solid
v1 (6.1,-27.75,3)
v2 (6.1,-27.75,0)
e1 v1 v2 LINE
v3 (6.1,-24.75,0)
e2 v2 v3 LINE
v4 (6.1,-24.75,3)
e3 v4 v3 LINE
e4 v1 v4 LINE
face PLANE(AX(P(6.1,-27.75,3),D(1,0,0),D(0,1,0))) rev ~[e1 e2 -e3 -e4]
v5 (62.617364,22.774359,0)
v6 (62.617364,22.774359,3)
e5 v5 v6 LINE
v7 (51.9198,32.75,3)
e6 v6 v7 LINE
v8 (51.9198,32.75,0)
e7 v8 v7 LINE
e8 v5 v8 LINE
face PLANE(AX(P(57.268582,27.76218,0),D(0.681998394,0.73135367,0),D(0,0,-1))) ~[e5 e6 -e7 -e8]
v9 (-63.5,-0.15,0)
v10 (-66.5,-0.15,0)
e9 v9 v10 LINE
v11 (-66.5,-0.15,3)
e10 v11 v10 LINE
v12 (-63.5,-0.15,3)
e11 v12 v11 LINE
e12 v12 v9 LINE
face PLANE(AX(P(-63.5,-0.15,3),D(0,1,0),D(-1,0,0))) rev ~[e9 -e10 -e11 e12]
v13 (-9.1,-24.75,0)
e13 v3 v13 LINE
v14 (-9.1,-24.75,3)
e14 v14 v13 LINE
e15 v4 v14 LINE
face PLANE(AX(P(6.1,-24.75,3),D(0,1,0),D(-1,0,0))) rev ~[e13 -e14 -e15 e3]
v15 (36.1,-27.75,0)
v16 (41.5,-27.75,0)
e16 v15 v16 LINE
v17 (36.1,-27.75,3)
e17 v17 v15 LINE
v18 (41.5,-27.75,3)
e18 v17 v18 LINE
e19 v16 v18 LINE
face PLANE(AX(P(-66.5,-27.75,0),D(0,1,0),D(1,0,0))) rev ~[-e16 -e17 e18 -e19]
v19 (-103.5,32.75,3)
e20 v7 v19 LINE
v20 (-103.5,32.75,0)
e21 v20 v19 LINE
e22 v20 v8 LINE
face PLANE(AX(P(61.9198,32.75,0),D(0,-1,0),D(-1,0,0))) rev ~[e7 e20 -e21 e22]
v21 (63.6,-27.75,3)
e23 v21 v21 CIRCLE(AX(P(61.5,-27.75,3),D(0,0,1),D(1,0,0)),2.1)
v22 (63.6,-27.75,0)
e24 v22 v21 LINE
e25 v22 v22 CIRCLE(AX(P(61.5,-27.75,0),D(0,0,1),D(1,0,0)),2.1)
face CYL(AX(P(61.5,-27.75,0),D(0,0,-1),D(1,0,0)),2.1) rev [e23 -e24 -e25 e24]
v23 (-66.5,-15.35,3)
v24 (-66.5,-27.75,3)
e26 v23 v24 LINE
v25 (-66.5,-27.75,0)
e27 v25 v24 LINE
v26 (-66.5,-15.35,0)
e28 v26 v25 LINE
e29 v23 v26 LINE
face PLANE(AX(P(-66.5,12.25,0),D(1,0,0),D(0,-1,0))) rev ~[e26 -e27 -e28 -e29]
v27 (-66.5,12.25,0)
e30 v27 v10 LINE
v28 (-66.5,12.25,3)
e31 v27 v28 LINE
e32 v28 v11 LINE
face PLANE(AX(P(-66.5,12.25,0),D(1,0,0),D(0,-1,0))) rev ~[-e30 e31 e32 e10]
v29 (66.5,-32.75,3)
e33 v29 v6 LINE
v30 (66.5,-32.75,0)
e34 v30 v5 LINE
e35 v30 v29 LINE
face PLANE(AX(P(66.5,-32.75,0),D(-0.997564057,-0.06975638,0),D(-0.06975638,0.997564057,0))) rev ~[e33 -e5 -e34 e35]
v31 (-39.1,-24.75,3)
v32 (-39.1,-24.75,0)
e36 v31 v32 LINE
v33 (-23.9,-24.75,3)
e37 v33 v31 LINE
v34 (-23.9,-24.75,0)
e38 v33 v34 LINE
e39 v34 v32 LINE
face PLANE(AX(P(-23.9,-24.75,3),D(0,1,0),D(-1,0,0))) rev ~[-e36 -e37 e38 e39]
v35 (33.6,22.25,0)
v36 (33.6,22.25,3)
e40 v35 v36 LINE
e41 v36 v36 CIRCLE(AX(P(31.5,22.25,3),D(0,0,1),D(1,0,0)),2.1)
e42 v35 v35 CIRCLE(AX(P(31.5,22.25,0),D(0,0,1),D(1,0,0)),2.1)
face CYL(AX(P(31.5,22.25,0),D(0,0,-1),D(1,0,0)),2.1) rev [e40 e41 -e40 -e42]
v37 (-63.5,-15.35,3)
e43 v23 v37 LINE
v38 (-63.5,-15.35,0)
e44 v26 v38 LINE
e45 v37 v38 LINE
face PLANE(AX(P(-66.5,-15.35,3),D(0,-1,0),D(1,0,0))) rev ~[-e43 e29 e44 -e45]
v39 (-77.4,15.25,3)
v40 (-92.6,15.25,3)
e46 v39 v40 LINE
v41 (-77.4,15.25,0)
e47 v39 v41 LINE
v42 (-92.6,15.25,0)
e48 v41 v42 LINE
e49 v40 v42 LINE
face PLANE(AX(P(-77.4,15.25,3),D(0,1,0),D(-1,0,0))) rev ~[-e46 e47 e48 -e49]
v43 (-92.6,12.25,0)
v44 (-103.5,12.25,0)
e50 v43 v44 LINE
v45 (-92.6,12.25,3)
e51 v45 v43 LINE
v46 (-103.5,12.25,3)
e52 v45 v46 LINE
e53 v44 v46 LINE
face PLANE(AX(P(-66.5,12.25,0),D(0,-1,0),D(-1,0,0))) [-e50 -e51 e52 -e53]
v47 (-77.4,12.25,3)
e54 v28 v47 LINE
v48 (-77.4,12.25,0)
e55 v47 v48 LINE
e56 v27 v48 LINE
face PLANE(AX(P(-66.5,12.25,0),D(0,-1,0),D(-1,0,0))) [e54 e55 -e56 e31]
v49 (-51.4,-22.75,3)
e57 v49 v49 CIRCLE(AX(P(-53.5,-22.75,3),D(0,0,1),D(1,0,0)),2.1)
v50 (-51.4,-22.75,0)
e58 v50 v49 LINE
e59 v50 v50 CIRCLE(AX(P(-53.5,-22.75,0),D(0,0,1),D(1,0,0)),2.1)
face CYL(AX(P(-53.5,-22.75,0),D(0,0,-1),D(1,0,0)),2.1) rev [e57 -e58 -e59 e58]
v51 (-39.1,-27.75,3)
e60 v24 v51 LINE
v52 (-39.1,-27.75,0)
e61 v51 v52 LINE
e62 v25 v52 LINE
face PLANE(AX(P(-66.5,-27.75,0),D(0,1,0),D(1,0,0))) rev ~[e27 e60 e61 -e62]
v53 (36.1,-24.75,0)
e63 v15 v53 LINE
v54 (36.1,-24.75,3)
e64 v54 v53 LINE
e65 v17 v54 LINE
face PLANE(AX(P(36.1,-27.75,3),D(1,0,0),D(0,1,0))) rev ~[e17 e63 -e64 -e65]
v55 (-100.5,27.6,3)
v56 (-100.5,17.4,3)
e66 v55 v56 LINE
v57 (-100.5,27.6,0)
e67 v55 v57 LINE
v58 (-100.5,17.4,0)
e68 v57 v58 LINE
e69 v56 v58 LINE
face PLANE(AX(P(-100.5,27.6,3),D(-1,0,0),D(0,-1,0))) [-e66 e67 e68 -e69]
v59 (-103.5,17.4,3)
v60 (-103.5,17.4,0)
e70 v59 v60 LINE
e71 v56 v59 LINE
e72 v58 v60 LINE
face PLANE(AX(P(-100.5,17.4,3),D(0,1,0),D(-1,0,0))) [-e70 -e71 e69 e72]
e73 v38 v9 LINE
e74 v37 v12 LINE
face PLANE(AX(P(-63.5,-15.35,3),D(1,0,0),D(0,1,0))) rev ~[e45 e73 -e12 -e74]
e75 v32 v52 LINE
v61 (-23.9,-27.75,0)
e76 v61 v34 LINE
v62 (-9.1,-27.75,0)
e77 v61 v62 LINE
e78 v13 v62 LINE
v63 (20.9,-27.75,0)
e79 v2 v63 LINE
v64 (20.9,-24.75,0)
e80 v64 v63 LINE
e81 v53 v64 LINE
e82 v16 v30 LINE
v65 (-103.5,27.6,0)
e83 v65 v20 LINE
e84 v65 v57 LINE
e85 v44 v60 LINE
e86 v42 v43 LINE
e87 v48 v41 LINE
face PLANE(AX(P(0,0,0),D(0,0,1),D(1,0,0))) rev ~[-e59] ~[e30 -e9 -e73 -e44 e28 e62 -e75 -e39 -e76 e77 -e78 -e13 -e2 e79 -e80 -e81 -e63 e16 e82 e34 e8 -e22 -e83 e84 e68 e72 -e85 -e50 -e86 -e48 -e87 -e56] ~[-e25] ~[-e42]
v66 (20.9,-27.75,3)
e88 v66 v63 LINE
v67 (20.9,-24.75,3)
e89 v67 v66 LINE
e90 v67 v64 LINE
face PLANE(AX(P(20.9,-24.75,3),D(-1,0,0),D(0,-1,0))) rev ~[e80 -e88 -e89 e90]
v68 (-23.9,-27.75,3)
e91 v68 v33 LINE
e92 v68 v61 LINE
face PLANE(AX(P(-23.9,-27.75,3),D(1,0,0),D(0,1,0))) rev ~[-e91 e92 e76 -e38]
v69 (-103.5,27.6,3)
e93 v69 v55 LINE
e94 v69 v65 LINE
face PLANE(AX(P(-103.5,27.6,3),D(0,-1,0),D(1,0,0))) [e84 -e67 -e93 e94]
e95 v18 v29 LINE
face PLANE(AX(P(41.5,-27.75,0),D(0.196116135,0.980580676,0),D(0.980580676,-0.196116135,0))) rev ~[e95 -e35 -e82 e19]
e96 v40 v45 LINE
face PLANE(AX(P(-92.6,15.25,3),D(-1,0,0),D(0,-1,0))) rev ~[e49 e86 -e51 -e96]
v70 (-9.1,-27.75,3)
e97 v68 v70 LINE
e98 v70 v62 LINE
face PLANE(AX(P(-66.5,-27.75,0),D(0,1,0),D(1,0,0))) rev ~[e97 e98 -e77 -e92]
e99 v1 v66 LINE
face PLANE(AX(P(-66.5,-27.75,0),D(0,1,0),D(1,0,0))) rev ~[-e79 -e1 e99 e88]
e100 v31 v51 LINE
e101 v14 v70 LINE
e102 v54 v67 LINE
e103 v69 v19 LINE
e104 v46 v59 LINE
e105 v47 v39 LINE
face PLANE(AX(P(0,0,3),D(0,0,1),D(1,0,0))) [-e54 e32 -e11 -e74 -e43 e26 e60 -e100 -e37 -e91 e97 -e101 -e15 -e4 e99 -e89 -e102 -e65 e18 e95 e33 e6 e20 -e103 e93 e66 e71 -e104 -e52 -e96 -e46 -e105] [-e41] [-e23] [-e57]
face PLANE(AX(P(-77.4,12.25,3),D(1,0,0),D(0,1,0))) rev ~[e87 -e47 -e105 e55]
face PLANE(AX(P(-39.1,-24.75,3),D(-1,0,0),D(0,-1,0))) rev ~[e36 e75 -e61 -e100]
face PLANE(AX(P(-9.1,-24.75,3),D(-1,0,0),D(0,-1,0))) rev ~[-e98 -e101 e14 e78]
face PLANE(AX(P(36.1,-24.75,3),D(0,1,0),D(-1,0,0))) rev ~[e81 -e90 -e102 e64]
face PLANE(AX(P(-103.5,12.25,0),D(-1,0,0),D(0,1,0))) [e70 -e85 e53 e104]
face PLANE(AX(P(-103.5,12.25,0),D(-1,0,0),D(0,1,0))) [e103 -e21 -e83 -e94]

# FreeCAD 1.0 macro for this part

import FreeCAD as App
import Part
import Sketcher
Q = App.Units.Quantity


def edges_at(feature, points):
    """Names of the edges that pass closest to the given points."""
    edges = feature.Shape.Edges
    near = lambda p: min(range(len(edges)), key=lambda i: edges[i].distToShape(Part.Vertex(*p))[0])
    return sorted({f"Edge{near(p) + 1}" for p in points})

doc = App.newDocument("Part")
body = doc.addObject("PartDesign::Body", "Body")

# Sketch on XY plane
sketch1 = body.newObject("Sketcher::SketchObject", "Sketch")
sketch1.AttachmentSupport = (doc.getObject("XY_Plane"), [""])
sketch1.MapMode = "FlatFace"
sketch1.addGeometry(Part.LineSegment(App.Vector(41.5, -27.8, 0), App.Vector(66.5, -32.8, 0)), False)
sketch1.addGeometry(Part.LineSegment(App.Vector(66.5, -32.8, 0), App.Vector(61.9, 32.8, 0)), False)
sketch1.addGeometry(Part.LineSegment(App.Vector(61.9, 32.8, 0), App.Vector(-103.5, 32.8, 0)), False)
sketch1.addGeometry(Part.LineSegment(App.Vector(-103.5, 32.8, 0), App.Vector(-103.5, 12.2, 0)), False)
sketch1.addGeometry(Part.LineSegment(App.Vector(-103.5, 12.2, 0), App.Vector(-66.5, 12.2, 0)), False)
sketch1.addGeometry(Part.LineSegment(App.Vector(-66.5, 12.2, 0), App.Vector(-66.5, -27.8, 0)), False)
sketch1.addGeometry(Part.LineSegment(App.Vector(-66.5, -27.8, 0), App.Vector(41.5, -27.8, 0)), False)
sketch1.addGeometry(Part.Circle(App.Vector(-53.5, -22.8, 0), App.Vector(0, 0, 1), 2.1), False)
sketch1.addGeometry(Part.Circle(App.Vector(61.5, -27.8, 0), App.Vector(0, 0, 1), 2.1), False)
sketch1.addGeometry(Part.Circle(App.Vector(31.5, 22.2, 0), App.Vector(0, 0, 1), 2.1), False)
sketch1.addConstraint(Sketcher.Constraint("Coincident", 0, 2, 1, 1))
sketch1.addConstraint(Sketcher.Constraint("Coincident", 1, 2, 2, 1))
sketch1.addConstraint(Sketcher.Constraint("Coincident", 2, 2, 3, 1))
sketch1.addConstraint(Sketcher.Constraint("Coincident", 3, 2, 4, 1))
sketch1.addConstraint(Sketcher.Constraint("Coincident", 4, 2, 5, 1))
sketch1.addConstraint(Sketcher.Constraint("Coincident", 5, 2, 6, 1))
sketch1.addConstraint(Sketcher.Constraint("Coincident", 6, 2, 0, 1))
sketch1.addConstraint(Sketcher.Constraint("Horizontal", 2))
sketch1.addConstraint(Sketcher.Constraint("Vertical", 3))
sketch1.addConstraint(Sketcher.Constraint("Horizontal", 4))
sketch1.addConstraint(Sketcher.Constraint("Vertical", 5))
sketch1.addConstraint(Sketcher.Constraint("Horizontal", 6))
sketch1.addConstraint(Sketcher.Constraint("Equal", 7, 8))
sketch1.addConstraint(Sketcher.Constraint("Equal", 8, 9))
sketch1.addConstraint(Sketcher.Constraint("Horizontal", 8, 3, 5, 2))
sketch1.addConstraint(Sketcher.Constraint("Diameter", 7, 4.2))
sketch1.addConstraint(Sketcher.Constraint("DistanceX", 4, 1, 4, 2, 37.0))
sketch1.addConstraint(Sketcher.Constraint("DistanceX", 6, 1, 6, 2, 108.0))
sketch1.addConstraint(Sketcher.Constraint("DistanceY", 5, 2, 5, 1, 40.0))
sketch1.addConstraint(Sketcher.Constraint("DistanceY", 8, 3, 7, 3, 5.0))
sketch1.addConstraint(Sketcher.Constraint("DistanceY", 8, 3, 9, 3, 50.0))
sketch1.addConstraint(Sketcher.Constraint("DistanceX", 8, 3, 0, 2, 5.0))
sketch1.addConstraint(Sketcher.Constraint("DistanceY", 0, 2, 8, 3, 5.0))
sketch1.addConstraint(Sketcher.Constraint("DistanceX", 2, 2, 7, 3, 50.0))
sketch1.addConstraint(Sketcher.Constraint("DistanceX", 4, 2, 9, 3, 98.0))
sketch1.addConstraint(Sketcher.Constraint("DistanceY", 0, 2, 1, 2, 65.5))
sketch1.addConstraint(Sketcher.Constraint("Angle", 1, Q("94 deg")))
sketch1.addConstraint(Sketcher.Constraint("DistanceX", 7, 3, 8, 3, 115.0))
sketch1.addConstraint(Sketcher.Constraint("DistanceX", 7, 3, -1, 1, 53.5))
sketch1.addConstraint(Sketcher.Constraint("DistanceY", 7, 3, -1, 1, 22.75))
pad1 = body.newObject("PartDesign::Pad", "Pad")
pad1.Profile = sketch1
pad1.Length = 3

# Sketch on XY plane
sketch2 = body.newObject("Sketcher::SketchObject", "Sketch001")
sketch2.AttachmentSupport = (doc.getObject("XY_Plane"), [""])
sketch2.MapMode = "FlatFace"
sketch2.AttachmentOffset = App.Placement(App.Vector(0, 0, 3), App.Rotation())
sketch2.addGeometry(Part.LineSegment(App.Vector(-100.5, 27.6, 0), App.Vector(-103.5, 27.6, 0)), False)
sketch2.addGeometry(Part.LineSegment(App.Vector(-103.5, 27.6, 0), App.Vector(-103.5, 17.4, 0)), False)
sketch2.addGeometry(Part.LineSegment(App.Vector(-103.5, 17.4, 0), App.Vector(-100.5, 17.4, 0)), False)
sketch2.addGeometry(Part.LineSegment(App.Vector(-100.5, 17.4, 0), App.Vector(-100.5, 27.6, 0)), False)
sketch2.addGeometry(Part.LineSegment(App.Vector(-92.6, 15.2, 0), App.Vector(-92.6, 12.2, 0)), False)
sketch2.addGeometry(Part.LineSegment(App.Vector(-92.6, 12.2, 0), App.Vector(-77.4, 12.2, 0)), False)
sketch2.addGeometry(Part.LineSegment(App.Vector(-77.4, 12.2, 0), App.Vector(-77.4, 15.2, 0)), False)
sketch2.addGeometry(Part.LineSegment(App.Vector(-77.4, 15.2, 0), App.Vector(-92.6, 15.2, 0)), False)
sketch2.addGeometry(Part.LineSegment(App.Vector(20.9, -24.8, 0), App.Vector(20.9, -27.8, 0)), False)
sketch2.addGeometry(Part.LineSegment(App.Vector(20.9, -27.8, 0), App.Vector(36.1, -27.8, 0)), False)
sketch2.addGeometry(Part.LineSegment(App.Vector(36.1, -27.8, 0), App.Vector(36.1, -24.8, 0)), False)
sketch2.addGeometry(Part.LineSegment(App.Vector(36.1, -24.8, 0), App.Vector(20.9, -24.8, 0)), False)
sketch2.addGeometry(Part.LineSegment(App.Vector(-9.1, -24.8, 0), App.Vector(-9.1, -27.8, 0)), False)
sketch2.addGeometry(Part.LineSegment(App.Vector(-9.1, -27.8, 0), App.Vector(6.1, -27.8, 0)), False)
sketch2.addGeometry(Part.LineSegment(App.Vector(6.1, -27.8, 0), App.Vector(6.1, -24.8, 0)), False)
sketch2.addGeometry(Part.LineSegment(App.Vector(6.1, -24.8, 0), App.Vector(-9.1, -24.8, 0)), False)
sketch2.addGeometry(Part.LineSegment(App.Vector(-39.1, -24.8, 0), App.Vector(-39.1, -27.8, 0)), False)
sketch2.addGeometry(Part.LineSegment(App.Vector(-39.1, -27.8, 0), App.Vector(-23.9, -27.8, 0)), False)
sketch2.addGeometry(Part.LineSegment(App.Vector(-23.9, -27.8, 0), App.Vector(-23.9, -24.8, 0)), False)
sketch2.addGeometry(Part.LineSegment(App.Vector(-23.9, -24.8, 0), App.Vector(-39.1, -24.8, 0)), False)
sketch2.addGeometry(Part.LineSegment(App.Vector(-63.5, -0.1, 0), App.Vector(-66.5, -0.1, 0)), False)
sketch2.addGeometry(Part.LineSegment(App.Vector(-66.5, -0.1, 0), App.Vector(-66.5, -15.3, 0)), False)
sketch2.addGeometry(Part.LineSegment(App.Vector(-66.5, -15.3, 0), App.Vector(-63.5, -15.3, 0)), False)
sketch2.addGeometry(Part.LineSegment(App.Vector(-63.5, -15.3, 0), App.Vector(-63.5, -0.1, 0)), False)
sketch2.addConstraint(Sketcher.Constraint("Coincident", 0, 2, 1, 1))
sketch2.addConstraint(Sketcher.Constraint("Coincident", 1, 2, 2, 1))
sketch2.addConstraint(Sketcher.Constraint("Coincident", 2, 2, 3, 1))
sketch2.addConstraint(Sketcher.Constraint("Coincident", 3, 2, 0, 1))
sketch2.addConstraint(Sketcher.Constraint("Coincident", 4, 2, 5, 1))
sketch2.addConstraint(Sketcher.Constraint("Coincident", 5, 2, 6, 1))
sketch2.addConstraint(Sketcher.Constraint("Coincident", 6, 2, 7, 1))
sketch2.addConstraint(Sketcher.Constraint("Coincident", 7, 2, 4, 1))
sketch2.addConstraint(Sketcher.Constraint("Coincident", 8, 2, 9, 1))
sketch2.addConstraint(Sketcher.Constraint("Coincident", 9, 2, 10, 1))
sketch2.addConstraint(Sketcher.Constraint("Coincident", 10, 2, 11, 1))
sketch2.addConstraint(Sketcher.Constraint("Coincident", 11, 2, 8, 1))
sketch2.addConstraint(Sketcher.Constraint("Coincident", 12, 2, 13, 1))
sketch2.addConstraint(Sketcher.Constraint("Coincident", 13, 2, 14, 1))
sketch2.addConstraint(Sketcher.Constraint("Coincident", 14, 2, 15, 1))
sketch2.addConstraint(Sketcher.Constraint("Coincident", 15, 2, 12, 1))
sketch2.addConstraint(Sketcher.Constraint("Coincident", 16, 2, 17, 1))
sketch2.addConstraint(Sketcher.Constraint("Coincident", 17, 2, 18, 1))
sketch2.addConstraint(Sketcher.Constraint("Coincident", 18, 2, 19, 1))
sketch2.addConstraint(Sketcher.Constraint("Coincident", 19, 2, 16, 1))
sketch2.addConstraint(Sketcher.Constraint("Coincident", 20, 2, 21, 1))
sketch2.addConstraint(Sketcher.Constraint("Coincident", 21, 2, 22, 1))
sketch2.addConstraint(Sketcher.Constraint("Coincident", 22, 2, 23, 1))
sketch2.addConstraint(Sketcher.Constraint("Coincident", 23, 2, 20, 1))
sketch2.addConstraint(Sketcher.Constraint("Horizontal", 0))
sketch2.addConstraint(Sketcher.Constraint("Vertical", 1))
sketch2.addConstraint(Sketcher.Constraint("Horizontal", 2))
sketch2.addConstraint(Sketcher.Constraint("Vertical", 3))
sketch2.addConstraint(Sketcher.Constraint("Vertical", 4))
sketch2.addConstraint(Sketcher.Constraint("Horizontal", 5))
sketch2.addConstraint(Sketcher.Constraint("Vertical", 6))
sketch2.addConstraint(Sketcher.Constraint("Horizontal", 7))
sketch2.addConstraint(Sketcher.Constraint("Vertical", 8))
sketch2.addConstraint(Sketcher.Constraint("Horizontal", 9))
sketch2.addConstraint(Sketcher.Constraint("Vertical", 10))
sketch2.addConstraint(Sketcher.Constraint("Horizontal", 11))
sketch2.addConstraint(Sketcher.Constraint("Vertical", 12))
sketch2.addConstraint(Sketcher.Constraint("Horizontal", 13))
sketch2.addConstraint(Sketcher.Constraint("Vertical", 14))
sketch2.addConstraint(Sketcher.Constraint("Horizontal", 15))
sketch2.addConstraint(Sketcher.Constraint("Vertical", 16))
sketch2.addConstraint(Sketcher.Constraint("Horizontal", 17))
sketch2.addConstraint(Sketcher.Constraint("Vertical", 18))
sketch2.addConstraint(Sketcher.Constraint("Horizontal", 19))
sketch2.addConstraint(Sketcher.Constraint("Horizontal", 20))
sketch2.addConstraint(Sketcher.Constraint("Vertical", 21))
sketch2.addConstraint(Sketcher.Constraint("Horizontal", 22))
sketch2.addConstraint(Sketcher.Constraint("Vertical", 23))
sketch2.addConstraint(Sketcher.Constraint("Horizontal", 9, 2, 12, 2))
sketch2.addConstraint(Sketcher.Constraint("Horizontal", 11, 2, 14, 2))
sketch2.addConstraint(Sketcher.Constraint("Horizontal", 13, 2, 16, 2))
sketch2.addConstraint(Sketcher.Constraint("Horizontal", 15, 2, 18, 2))
sketch2.addConstraint(Sketcher.Constraint("Equal", 7, 9))
sketch2.addConstraint(Sketcher.Constraint("Equal", 11, 13))
sketch2.addConstraint(Sketcher.Constraint("Equal", 15, 17))
sketch2.addConstraint(Sketcher.Constraint("Equal", 2, 20))
sketch2.addConstraint(Sketcher.Constraint("Equal", 22, 4))
sketch2.addConstraint(Sketcher.Constraint("Equal", 6, 8))
sketch2.addConstraint(Sketcher.Constraint("Equal", 19, 21))
sketch2.addConstraint(Sketcher.Constraint("DistanceX", 0, 2, 0, 1, 3.0))
sketch2.addConstraint(Sketcher.Constraint("DistanceX", 5, 1, 5, 2, 15.2))
sketch2.addConstraint(Sketcher.Constraint("DistanceY", 1, 2, 1, 1, 10.2))
sketch2.addConstraint(Sketcher.Constraint("DistanceX", 12, 2, 8, 2, 30.0))
sketch2.addConstraint(Sketcher.Constraint("DistanceX", 16, 2, 12, 2, 30.0))
sketch2.addConstraint(Sketcher.Constraint("DistanceY", 8, 2, 5, 2, 40.0))
sketch2.addConstraint(Sketcher.Constraint("DistanceX", 0, 2, -1, 1, 103.5))
sketch2.addConstraint(Sketcher.Constraint("DistanceY", -1, 1, 0, 2, 27.6))
sketch2.addConstraint(Sketcher.Constraint("DistanceX", 4, 2, -1, 1, 92.6))
sketch2.addConstraint(Sketcher.Constraint("DistanceX", -1, 1, 8, 2, 20.9))
sketch2.addConstraint(Sketcher.Constraint("DistanceX", 20, 2, -1, 1, 66.5))
sketch2.addConstraint(Sketcher.Constraint("DistanceY", 20, 2, 5, 2, 12.4))
sketch2.addConstraint(Sketcher.Constraint("DistanceY", -1, 1, 4, 2, 12.25))
pocket1 = body.newObject("PartDesign::Pocket", "Pocket")
pocket1.Profile = sketch2
pocket1.Type = "ThroughAll"
doc.recompute()

chamfer = body.newObject("PartDesign::Chamfer", "Chamfer")
chamfer.Base = (pocket1, edges_at(pocket1, [(61.92, 32.75, 1.5)]))
chamfer.Size = 10

doc.recompute()
